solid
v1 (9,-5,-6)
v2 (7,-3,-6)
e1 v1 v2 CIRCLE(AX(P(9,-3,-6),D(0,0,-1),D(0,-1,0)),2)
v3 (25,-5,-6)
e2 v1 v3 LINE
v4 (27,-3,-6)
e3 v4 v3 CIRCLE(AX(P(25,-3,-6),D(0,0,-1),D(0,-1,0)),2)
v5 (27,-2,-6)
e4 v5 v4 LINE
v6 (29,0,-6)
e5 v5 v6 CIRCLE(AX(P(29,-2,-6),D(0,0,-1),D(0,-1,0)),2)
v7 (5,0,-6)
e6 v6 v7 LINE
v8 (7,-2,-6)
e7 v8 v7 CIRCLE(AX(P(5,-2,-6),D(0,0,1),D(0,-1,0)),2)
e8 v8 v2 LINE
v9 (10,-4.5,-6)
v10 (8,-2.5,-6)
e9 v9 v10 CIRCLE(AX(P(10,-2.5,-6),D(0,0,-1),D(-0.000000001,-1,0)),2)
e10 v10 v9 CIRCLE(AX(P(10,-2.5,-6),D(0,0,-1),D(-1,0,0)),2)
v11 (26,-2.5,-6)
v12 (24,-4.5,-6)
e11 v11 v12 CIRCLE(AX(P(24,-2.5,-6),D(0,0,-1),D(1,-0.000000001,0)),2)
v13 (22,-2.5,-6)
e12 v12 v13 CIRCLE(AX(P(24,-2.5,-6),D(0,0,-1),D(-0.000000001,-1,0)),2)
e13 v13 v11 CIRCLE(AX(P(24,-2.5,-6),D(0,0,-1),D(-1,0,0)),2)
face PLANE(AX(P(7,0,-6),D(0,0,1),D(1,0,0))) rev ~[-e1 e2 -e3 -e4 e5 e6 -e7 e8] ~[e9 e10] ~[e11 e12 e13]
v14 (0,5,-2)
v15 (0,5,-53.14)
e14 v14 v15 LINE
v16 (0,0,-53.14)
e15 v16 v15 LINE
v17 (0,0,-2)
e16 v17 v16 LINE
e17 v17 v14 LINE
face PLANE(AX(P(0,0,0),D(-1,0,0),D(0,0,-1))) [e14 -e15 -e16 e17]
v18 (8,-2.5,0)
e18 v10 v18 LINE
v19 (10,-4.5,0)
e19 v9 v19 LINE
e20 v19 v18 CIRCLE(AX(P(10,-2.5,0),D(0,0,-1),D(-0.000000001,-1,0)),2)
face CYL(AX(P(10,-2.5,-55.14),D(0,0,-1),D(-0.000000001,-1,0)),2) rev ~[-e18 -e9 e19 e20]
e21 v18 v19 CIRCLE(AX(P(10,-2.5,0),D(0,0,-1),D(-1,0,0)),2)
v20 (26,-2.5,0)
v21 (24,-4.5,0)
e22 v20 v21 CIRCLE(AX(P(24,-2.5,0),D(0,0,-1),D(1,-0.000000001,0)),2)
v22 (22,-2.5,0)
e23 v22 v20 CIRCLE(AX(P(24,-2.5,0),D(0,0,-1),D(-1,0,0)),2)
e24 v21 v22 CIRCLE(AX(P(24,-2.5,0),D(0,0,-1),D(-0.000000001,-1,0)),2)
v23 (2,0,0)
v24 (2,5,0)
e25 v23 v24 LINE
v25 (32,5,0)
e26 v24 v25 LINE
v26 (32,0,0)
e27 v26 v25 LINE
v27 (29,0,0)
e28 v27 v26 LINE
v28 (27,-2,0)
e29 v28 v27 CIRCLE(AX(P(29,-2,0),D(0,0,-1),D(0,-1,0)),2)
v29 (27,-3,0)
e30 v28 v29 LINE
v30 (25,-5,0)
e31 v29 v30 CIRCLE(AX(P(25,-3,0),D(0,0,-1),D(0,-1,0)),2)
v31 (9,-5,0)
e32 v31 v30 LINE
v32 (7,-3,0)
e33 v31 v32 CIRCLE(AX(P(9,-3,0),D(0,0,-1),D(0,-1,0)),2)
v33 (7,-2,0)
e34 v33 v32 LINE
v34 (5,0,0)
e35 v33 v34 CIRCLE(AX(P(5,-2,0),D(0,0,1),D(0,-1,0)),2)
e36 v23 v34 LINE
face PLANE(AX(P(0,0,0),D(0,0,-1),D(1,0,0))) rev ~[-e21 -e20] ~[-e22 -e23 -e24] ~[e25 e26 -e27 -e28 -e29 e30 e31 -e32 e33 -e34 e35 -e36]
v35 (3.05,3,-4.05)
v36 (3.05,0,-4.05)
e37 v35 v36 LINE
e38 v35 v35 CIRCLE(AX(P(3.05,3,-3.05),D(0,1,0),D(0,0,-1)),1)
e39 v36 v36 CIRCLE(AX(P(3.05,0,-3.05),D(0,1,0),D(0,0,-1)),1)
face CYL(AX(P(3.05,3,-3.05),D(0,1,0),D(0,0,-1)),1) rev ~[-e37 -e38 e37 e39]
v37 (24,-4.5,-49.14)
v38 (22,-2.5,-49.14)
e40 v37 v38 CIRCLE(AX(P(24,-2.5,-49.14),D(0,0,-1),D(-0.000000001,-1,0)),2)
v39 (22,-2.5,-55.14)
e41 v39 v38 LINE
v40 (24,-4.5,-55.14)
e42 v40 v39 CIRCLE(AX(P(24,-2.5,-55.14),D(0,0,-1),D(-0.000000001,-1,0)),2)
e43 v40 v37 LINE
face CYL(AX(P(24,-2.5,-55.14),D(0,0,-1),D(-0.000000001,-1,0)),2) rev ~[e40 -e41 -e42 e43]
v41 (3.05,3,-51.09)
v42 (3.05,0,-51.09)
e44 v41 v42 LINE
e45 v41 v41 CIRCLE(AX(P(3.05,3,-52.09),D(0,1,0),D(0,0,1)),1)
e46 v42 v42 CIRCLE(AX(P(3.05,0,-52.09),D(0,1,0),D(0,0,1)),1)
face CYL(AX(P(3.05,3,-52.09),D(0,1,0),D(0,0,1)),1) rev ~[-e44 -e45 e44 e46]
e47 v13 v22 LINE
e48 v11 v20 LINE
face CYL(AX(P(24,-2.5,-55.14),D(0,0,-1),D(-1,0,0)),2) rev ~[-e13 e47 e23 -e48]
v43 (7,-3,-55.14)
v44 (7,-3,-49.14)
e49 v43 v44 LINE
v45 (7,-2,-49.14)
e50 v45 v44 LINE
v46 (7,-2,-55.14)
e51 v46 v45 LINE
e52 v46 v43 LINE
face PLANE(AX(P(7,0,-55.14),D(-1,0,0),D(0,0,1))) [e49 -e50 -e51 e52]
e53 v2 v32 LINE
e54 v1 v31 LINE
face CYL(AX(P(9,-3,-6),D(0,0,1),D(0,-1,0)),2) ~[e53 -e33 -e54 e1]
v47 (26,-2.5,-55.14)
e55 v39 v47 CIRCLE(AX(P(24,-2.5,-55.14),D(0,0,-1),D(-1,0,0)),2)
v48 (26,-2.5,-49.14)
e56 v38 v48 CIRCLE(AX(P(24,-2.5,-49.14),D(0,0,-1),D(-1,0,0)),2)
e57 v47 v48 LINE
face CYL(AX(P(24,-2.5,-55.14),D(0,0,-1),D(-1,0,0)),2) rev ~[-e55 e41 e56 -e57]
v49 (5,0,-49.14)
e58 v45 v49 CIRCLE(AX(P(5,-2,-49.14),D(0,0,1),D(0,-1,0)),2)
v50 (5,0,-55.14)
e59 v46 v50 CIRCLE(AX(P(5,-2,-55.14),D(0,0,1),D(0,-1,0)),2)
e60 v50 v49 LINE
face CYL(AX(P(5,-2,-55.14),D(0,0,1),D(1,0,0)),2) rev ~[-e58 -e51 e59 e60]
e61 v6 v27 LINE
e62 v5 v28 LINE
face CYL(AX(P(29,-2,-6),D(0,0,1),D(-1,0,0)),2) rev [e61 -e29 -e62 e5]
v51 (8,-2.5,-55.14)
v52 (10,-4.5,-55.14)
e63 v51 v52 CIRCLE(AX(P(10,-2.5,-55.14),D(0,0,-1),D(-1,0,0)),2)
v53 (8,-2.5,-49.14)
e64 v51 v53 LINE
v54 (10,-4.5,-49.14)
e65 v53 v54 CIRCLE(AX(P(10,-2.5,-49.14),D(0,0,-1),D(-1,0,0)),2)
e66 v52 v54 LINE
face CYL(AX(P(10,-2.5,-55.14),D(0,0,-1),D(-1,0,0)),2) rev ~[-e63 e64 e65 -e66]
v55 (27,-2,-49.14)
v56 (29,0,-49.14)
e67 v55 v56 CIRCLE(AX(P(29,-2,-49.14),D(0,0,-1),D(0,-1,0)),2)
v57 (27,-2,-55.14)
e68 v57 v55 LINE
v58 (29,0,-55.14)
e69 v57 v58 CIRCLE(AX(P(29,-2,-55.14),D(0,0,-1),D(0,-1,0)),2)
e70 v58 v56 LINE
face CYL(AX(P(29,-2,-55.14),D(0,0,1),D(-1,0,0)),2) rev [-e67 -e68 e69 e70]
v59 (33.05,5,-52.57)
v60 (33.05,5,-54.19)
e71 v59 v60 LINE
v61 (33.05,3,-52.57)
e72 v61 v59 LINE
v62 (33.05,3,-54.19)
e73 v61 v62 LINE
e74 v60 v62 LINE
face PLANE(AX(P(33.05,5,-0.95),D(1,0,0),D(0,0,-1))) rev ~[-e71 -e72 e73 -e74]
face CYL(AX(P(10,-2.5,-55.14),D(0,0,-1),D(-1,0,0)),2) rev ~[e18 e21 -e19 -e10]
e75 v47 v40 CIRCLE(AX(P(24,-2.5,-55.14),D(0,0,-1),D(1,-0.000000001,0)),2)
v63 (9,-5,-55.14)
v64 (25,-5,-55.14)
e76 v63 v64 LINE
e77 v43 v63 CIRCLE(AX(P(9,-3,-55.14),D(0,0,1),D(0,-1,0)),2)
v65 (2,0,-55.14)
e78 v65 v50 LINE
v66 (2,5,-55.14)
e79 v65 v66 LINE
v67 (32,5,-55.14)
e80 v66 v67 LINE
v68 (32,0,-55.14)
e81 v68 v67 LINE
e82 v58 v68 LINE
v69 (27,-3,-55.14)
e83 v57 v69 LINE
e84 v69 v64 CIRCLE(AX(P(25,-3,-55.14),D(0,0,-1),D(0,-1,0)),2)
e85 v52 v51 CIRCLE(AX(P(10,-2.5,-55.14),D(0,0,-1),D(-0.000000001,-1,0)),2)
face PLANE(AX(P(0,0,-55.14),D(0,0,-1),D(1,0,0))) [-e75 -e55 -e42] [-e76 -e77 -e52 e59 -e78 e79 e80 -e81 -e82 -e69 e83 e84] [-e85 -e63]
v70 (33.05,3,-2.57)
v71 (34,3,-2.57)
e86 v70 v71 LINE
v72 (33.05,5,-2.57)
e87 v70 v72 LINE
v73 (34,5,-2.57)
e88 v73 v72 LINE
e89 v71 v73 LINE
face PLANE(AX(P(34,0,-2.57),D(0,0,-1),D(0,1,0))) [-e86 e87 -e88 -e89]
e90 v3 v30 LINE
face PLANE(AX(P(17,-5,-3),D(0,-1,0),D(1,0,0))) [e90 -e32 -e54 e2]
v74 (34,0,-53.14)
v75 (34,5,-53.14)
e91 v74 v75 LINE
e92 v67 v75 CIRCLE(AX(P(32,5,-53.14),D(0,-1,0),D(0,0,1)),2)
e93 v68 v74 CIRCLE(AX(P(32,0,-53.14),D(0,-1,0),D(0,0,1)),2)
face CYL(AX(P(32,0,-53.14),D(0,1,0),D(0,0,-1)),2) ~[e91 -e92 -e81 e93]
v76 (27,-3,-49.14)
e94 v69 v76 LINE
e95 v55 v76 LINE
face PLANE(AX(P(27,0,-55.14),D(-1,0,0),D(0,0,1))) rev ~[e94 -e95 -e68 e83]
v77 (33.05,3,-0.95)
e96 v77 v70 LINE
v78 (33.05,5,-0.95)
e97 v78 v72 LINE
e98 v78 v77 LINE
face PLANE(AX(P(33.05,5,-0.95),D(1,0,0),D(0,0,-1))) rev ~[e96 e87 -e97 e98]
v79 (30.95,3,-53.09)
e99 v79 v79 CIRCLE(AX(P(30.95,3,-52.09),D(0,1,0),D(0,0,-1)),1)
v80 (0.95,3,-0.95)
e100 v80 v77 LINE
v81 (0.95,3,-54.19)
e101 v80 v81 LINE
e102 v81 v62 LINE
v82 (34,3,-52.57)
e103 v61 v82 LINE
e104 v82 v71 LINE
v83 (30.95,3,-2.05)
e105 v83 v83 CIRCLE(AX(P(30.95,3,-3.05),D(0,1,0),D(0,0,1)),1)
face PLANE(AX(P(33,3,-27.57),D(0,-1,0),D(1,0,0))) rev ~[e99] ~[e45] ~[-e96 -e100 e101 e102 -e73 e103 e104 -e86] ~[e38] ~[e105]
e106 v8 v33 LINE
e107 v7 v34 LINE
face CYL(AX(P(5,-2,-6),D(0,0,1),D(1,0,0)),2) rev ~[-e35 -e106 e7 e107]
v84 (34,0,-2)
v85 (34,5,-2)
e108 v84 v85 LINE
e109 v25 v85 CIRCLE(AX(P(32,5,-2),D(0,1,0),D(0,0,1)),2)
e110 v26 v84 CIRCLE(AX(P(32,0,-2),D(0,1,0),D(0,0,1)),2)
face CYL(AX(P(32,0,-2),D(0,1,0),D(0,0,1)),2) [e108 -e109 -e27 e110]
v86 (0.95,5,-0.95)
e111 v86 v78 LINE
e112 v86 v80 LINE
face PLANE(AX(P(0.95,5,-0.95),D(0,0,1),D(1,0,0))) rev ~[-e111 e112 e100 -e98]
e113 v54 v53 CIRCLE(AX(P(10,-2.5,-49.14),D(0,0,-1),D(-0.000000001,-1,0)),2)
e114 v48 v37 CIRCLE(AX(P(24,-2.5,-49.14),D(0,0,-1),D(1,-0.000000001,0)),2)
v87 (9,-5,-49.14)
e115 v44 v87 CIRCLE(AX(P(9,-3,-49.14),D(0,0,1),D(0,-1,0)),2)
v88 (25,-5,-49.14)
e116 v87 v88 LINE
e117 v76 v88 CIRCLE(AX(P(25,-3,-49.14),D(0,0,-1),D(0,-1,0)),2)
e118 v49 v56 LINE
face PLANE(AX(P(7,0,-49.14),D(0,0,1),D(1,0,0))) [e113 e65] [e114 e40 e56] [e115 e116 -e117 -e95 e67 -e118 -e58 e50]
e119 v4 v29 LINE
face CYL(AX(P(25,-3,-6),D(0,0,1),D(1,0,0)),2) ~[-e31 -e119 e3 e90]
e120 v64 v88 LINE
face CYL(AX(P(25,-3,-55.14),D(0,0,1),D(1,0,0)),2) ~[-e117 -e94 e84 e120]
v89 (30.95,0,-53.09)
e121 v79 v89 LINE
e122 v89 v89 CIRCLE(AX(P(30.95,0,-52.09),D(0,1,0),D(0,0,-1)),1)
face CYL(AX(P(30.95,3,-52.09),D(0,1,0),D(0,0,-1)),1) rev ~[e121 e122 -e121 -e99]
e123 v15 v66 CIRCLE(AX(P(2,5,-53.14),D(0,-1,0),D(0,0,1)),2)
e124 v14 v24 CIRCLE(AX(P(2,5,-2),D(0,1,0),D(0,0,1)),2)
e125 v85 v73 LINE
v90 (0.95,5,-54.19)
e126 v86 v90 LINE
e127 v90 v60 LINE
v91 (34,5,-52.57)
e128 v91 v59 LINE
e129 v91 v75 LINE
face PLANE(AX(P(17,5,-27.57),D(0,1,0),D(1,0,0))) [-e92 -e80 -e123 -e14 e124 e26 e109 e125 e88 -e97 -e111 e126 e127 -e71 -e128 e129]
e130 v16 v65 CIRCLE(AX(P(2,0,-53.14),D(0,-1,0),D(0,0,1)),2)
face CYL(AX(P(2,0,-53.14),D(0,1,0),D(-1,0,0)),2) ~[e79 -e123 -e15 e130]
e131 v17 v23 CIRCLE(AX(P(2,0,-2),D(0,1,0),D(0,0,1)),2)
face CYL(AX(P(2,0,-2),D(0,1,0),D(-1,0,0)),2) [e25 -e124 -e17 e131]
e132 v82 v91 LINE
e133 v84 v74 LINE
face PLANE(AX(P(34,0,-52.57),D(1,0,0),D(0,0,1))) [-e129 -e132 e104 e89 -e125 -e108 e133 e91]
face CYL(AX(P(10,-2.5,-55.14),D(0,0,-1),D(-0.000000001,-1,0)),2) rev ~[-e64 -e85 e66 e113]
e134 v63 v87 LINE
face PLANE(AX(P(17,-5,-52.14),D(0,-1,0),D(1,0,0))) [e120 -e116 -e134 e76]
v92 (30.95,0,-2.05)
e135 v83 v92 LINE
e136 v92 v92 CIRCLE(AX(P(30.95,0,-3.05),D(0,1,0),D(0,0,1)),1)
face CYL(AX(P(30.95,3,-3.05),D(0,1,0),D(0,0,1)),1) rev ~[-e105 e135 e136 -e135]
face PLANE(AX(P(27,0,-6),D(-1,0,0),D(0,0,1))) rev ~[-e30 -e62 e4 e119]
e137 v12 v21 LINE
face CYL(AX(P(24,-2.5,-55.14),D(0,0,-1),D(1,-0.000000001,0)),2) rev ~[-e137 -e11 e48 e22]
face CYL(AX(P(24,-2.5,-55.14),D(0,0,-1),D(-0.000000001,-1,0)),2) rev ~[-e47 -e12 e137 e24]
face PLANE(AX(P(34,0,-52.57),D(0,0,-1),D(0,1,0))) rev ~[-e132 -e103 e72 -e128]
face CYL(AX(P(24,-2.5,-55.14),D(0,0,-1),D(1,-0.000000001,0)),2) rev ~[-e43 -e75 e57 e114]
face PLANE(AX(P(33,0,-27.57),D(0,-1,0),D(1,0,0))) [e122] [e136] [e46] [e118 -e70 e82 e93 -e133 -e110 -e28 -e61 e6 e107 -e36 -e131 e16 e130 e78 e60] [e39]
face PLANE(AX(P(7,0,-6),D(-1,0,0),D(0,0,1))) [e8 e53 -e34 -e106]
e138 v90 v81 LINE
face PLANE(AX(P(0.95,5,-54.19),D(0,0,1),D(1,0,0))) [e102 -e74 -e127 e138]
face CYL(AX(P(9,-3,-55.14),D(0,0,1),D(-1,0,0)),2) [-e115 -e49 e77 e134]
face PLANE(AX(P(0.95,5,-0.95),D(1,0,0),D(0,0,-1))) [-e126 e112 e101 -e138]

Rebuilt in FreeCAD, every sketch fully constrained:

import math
import FreeCAD as App
import Part
import Sketcher

V = App.Vector


def edges_at(feature, points):
    """Names of the edges that pass closest to the given points."""
    edges = feature.Shape.Edges
    near = lambda p: min(range(len(edges)), key=lambda i: edges[i].distToShape(Part.Vertex(*p))[0])
    return sorted({f"Edge{near(p) + 1}" for p in points})


def add_polygon(sketch, points):
    """Adds a closed chain of lines whose ends are joined by coincident constraints."""
    first, n = sketch.GeometryCount, len(points)
    for a, b in zip(points, points[1:] + points[:1]):
        sketch.addGeometry(Part.LineSegment(App.Vector(*a, 0), App.Vector(*b, 0)), False)
    for i in range(n):
        sketch.addConstraint(Sketcher.Constraint("Coincident", first + i, 2, first + (i + 1) % n, 1))

doc = App.newDocument("Part")
params = doc.addObject("Spreadsheet::Sheet", "Params")
for row, (alias, value) in enumerate([
    ("sketch1_width", "34 mm"),
    ("sketch1_height", "55.14 mm"),
    ("pad1_length", "5 mm"),
    ("sketch2_width", "32.1 mm"),
    ("sketch2_height", "53.24 mm"),
    ("pocket1_length", "2 mm"),
    ("sketch3_width", "10 mm"),
    ("sketch3_height", "50 mm"),
    ("pocket2_length", "2 mm"),
    ("fillet_radius", "2 mm"),
    ("fillet2_radius", "2 mm"),
    ("fillet3_radius", "2 mm"),
    ("fillet4_radius", "2 mm"),
    ("sketch4_diameter", "2 mm"),
    ("pocket3_length", "5 mm"),
    ("sketch5_radius", "1 mm"),
    ("sketch5_height", "43.04 mm"),
    ("pocket4_length", "5 mm"),
    ("pad2_length", "3 mm"),
    ("sketch7_width", "20 mm"),
    ("sketch7_height", "6 mm"),
    ("pad3_length", "5 mm"),
    ("sketch8_width", "20 mm"),
    ("sketch8_height", "6 mm"),
    ("pad4_length", "5 mm"),
    ("sketch9_radius", "2 mm"),
    ("fillet5_radius", "2 mm"),
    ("fillet6_radius", "2 mm"),
    ("fillet7_radius", "2 mm"),
    ("fillet8_radius", "2 mm"),
    ("fillet9_radius", "2 mm"),
    ("fillet10_radius", "2 mm"),
    ("fillet11_radius", "2 mm"),
    ("fillet12_radius", "2 mm"),
    ("sketch10_width", "2 mm"),
    ("sketch10_height", "50 mm"),
    ("pad5_length", "3 mm"),
], start=1):
    params.set(f"A{row}", alias)
    params.set(f"B{row}", "=" + value)
    params.setAlias(f"B{row}", alias)

body = doc.addObject("PartDesign::Body", "Body")

sketch1 = body.newObject("Sketcher::SketchObject", "Sketch")
sketch1.AttachmentSupport = (doc.getObject("XZ_Plane"), [""])
sketch1.MapMode = "FlatFace"
add_polygon(sketch1, [(0, -55), (0, 0), (34, 0), (34, -55)])
sketch1.addConstraint([
    Sketcher.Constraint("Vertical", 0),
    Sketcher.Constraint("Horizontal", 1),
    Sketcher.Constraint("Vertical", 2),
    Sketcher.Constraint("Horizontal", 3),
    Sketcher.Constraint("Coincident", 0, 2, -1, 1),
    Sketcher.Constraint("DistanceX", 1, 1, 1, 2, 34.0),
    Sketcher.Constraint("DistanceY", 0, 1, 0, 2, 55.14),
])
sketch1.setExpression("Constraints[9]", "Params.sketch1_width")
sketch1.setExpression("Constraints[10]", "Params.sketch1_height")
pad1 = body.newObject("PartDesign::Pad", "Pad")
pad1.Profile = sketch1
pad1.setExpression("Length", "Params.pad1_length")
pad1.Reversed = True

sketch2 = body.newObject("Sketcher::SketchObject", "Sketch001")
sketch2.AttachmentSupport = (doc.getObject("XZ_Plane"), [""])
sketch2.MapMode = "FlatFace"
sketch2.AttachmentOffset = App.Placement(V(0, 0, -5), App.Rotation())
add_polygon(sketch2, [(1, -54), (1, -1), (33, -1), (33, -54)])
sketch2.addConstraint([
    Sketcher.Constraint("Vertical", 0),
    Sketcher.Constraint("Horizontal", 1),
    Sketcher.Constraint("Vertical", 2),
    Sketcher.Constraint("Horizontal", 3),
    Sketcher.Constraint("DistanceX", 1, 1, 1, 2, 32.1),
    Sketcher.Constraint("DistanceY", 0, 1, 0, 2, 53.24),
    Sketcher.Constraint("DistanceX", -1, 1, 0, 2, 0.95),
    Sketcher.Constraint("DistanceY", 0, 2, -1, 1, 0.95),
])
sketch2.setExpression("Constraints[8]", "Params.sketch2_width")
sketch2.setExpression("Constraints[9]", "Params.sketch2_height")
pocket1 = body.newObject("PartDesign::Pocket", "Pocket")
pocket1.Profile = sketch2
pocket1.setExpression("Length", "Params.pocket1_length")
pocket1.Reversed = True

sketch3 = body.newObject("Sketcher::SketchObject", "Sketch002")
sketch3.AttachmentSupport = (doc.getObject("YZ_Plane"), [""])
sketch3.MapMode = "FlatFace"
sketch3.AttachmentOffset = App.Placement(V(0, 0, 34), App.Rotation())
add_polygon(sketch3, [(10, -3), (0, -3), (0, -53), (10, -53)])
sketch3.addConstraint([
    Sketcher.Constraint("Horizontal", 0),
    Sketcher.Constraint("Vertical", 1),
    Sketcher.Constraint("Horizontal", 2),
    Sketcher.Constraint("Vertical", 3),
    Sketcher.Constraint("PointOnObject", 0, 2, -2),
    Sketcher.Constraint("DistanceX", 0, 2, 0, 1, 10.0),
    Sketcher.Constraint("DistanceY", 1, 2, 1, 1, 50.0),
    Sketcher.Constraint("DistanceY", 0, 2, -1, 1, 2.57),
])
sketch3.setExpression("Constraints[9]", "Params.sketch3_width")
sketch3.setExpression("Constraints[10]", "Params.sketch3_height")
pocket2 = body.newObject("PartDesign::Pocket", "Pocket001")
pocket2.Profile = sketch3
pocket2.setExpression("Length", "Params.pocket2_length")
doc.recompute()

fillet = body.newObject("PartDesign::Fillet", "Fillet")
fillet.Base = (pocket2, edges_at(pocket2, [(0, 2.5, 0)]))
fillet.setExpression("Radius", "Params.fillet_radius")
doc.recompute()

fillet2 = body.newObject("PartDesign::Fillet", "Fillet001")
fillet2.Base = (fillet, edges_at(fillet, [(0, 2.5, -55.14)]))
fillet2.setExpression("Radius", "Params.fillet2_radius")
doc.recompute()

fillet3 = body.newObject("PartDesign::Fillet", "Fillet002")
fillet3.Base = (fillet2, edges_at(fillet2, [(34, 2.5, -55.14)]))
fillet3.setExpression("Radius", "Params.fillet3_radius")
doc.recompute()

fillet4 = body.newObject("PartDesign::Fillet", "Fillet003")
fillet4.Base = (fillet3, edges_at(fillet3, [(34, 2.5, 0)]))
fillet4.setExpression("Radius", "Params.fillet4_radius")

sketch4 = body.newObject("Sketcher::SketchObject", "Sketch003")
sketch4.AttachmentSupport = (doc.getObject("XZ_Plane"), [""])
sketch4.MapMode = "FlatFace"
sketch4.AttachmentOffset = App.Placement(V(0, 0, -3), App.Rotation())
sketch4.addGeometry([
    Part.Circle(V(3, -52.1, 0), V(0, 0, 1), 1),
    Part.Circle(V(3, -3, 0), V(0, 0, 1), 1),
    Part.Circle(V(30.9, -3, 0), V(0, 0, 1), 1),
    Part.Circle(V(30.9, -52.1, 0), V(0, 0, 1), 1),
], False)
sketch4.addConstraint([
    Sketcher.Constraint("Equal", 0, 1),
    Sketcher.Constraint("Equal", 1, 2),
    Sketcher.Constraint("Equal", 2, 3),
    Sketcher.Constraint("Horizontal", 1, 3, 2, 3),
    Sketcher.Constraint("Horizontal", 0, 3, 3, 3),
    Sketcher.Constraint("Vertical", 0, 3, 1, 3),
    Sketcher.Constraint("Vertical", 2, 3, 3, 3),
    Sketcher.Constraint("Diameter", 0, 2.0),
    Sketcher.Constraint("DistanceX", 1, 3, 2, 3, 27.9),
    Sketcher.Constraint("DistanceX", -1, 1, 0, 3, 3.05),
    Sketcher.Constraint("DistanceY", 0, 3, -1, 1, 52.09),
    Sketcher.Constraint("DistanceY", 1, 3, -1, 1, 3.05),
])
sketch4.setExpression("Constraints[7]", "Params.sketch4_diameter")
pocket3 = body.newObject("PartDesign::Pocket", "Pocket002")
pocket3.Profile = sketch4
pocket3.setExpression("Length", "Params.pocket3_length")
pocket3.Reversed = True

sketch5 = body.newObject("Sketcher::SketchObject", "Sketch004")
sketch5.AttachmentSupport = (doc.getObject("XZ_Plane"), [""])
sketch5.MapMode = "FlatFace"
sketch5.AttachmentOffset = App.Placement(V(0, 0, -3), App.Rotation())
sketch5.addGeometry([
    Part.ArcOfCircle(Part.Circle(V(6.05, -49.09, 0), V(0, 0, 1), 1), math.radians(-180), math.radians(-90)),
    Part.LineSegment(V(5.05, -49.09, 0), V(5.05, -6.05, 0)),
    Part.ArcOfCircle(Part.Circle(V(6.05, -6.05, 0), V(0, 0, 1), 1), math.radians(90), math.radians(180)),
    Part.LineSegment(V(6.05, -5.05, 0), V(6.25, -5.05, 0)),
    Part.ArcOfCircle(Part.Circle(V(6.25, -6.05, 0), V(0, 0, 1), 1), math.radians(0), math.radians(90)),
    Part.LineSegment(V(7.25, -6.05, 0), V(7.25, -49.09, 0)),
    Part.ArcOfCircle(Part.Circle(V(6.25, -49.09, 0), V(0, 0, 1), 1), math.radians(-90), math.radians(0)),
    Part.LineSegment(V(6.25, -50.09, 0), V(6.05, -50.09, 0)),
    Part.ArcOfCircle(Part.Circle(V(11.05, -49.09, 0), V(0, 0, 1), 1), math.radians(-180), math.radians(-90)),
    Part.LineSegment(V(10.05, -49.09, 0), V(10.05, -6.05, 0)),
    Part.ArcOfCircle(Part.Circle(V(11.05, -6.05, 0), V(0, 0, 1), 1), math.radians(90), math.radians(180)),
    Part.LineSegment(V(11.05, -5.05, 0), V(11.25, -5.05, 0)),
    Part.ArcOfCircle(Part.Circle(V(11.25, -6.05, 0), V(0, 0, 1), 1), math.radians(0), math.radians(90)),
    Part.LineSegment(V(12.25, -6.05, 0), V(12.25, -49.09, 0)),
    Part.ArcOfCircle(Part.Circle(V(11.25, -49.09, 0), V(0, 0, 1), 1), math.radians(-90), math.radians(0)),
    Part.LineSegment(V(11.25, -50.09, 0), V(11.05, -50.09, 0)),
    Part.ArcOfCircle(Part.Circle(V(21.05, -49.09, 0), V(0, 0, 1), 1), math.radians(-180), math.radians(-90)),
    Part.LineSegment(V(20.05, -49.09, 0), V(20.05, -6.05, 0)),
    Part.ArcOfCircle(Part.Circle(V(21.05, -6.05, 0), V(0, 0, 1), 1), math.radians(90), math.radians(180)),
    Part.LineSegment(V(21.05, -5.05, 0), V(21.25, -5.05, 0)),
    Part.ArcOfCircle(Part.Circle(V(21.25, -6.05, 0), V(0, 0, 1), 1), math.radians(0), math.radians(90)),
    Part.LineSegment(V(22.25, -6.05, 0), V(22.25, -49.09, 0)),
    Part.ArcOfCircle(Part.Circle(V(21.25, -49.09, 0), V(0, 0, 1), 1), math.radians(-90), math.radians(0)),
    Part.LineSegment(V(21.25, -50.09, 0), V(21.05, -50.09, 0)),
    Part.ArcOfCircle(Part.Circle(V(26.05, -6.05, 0), V(0, 0, 1), 1), math.radians(90), math.radians(180)),
    Part.LineSegment(V(26.05, -5.05, 0), V(26.25, -5.05, 0)),
    Part.ArcOfCircle(Part.Circle(V(26.25, -6.05, 0), V(0, 0, 1), 1), math.radians(0), math.radians(90)),
    Part.LineSegment(V(27.25, -6.05, 0), V(27.25, -49.09, 0)),
    Part.ArcOfCircle(Part.Circle(V(26.25, -49.09, 0), V(0, 0, 1), 1), math.radians(-90), math.radians(0)),
    Part.LineSegment(V(26.25, -50.09, 0), V(26.05, -50.09, 0)),
    Part.ArcOfCircle(Part.Circle(V(26.05, -49.09, 0), V(0, 0, 1), 1), math.radians(-180), math.radians(-90)),
    Part.LineSegment(V(25.05, -49.09, 0), V(25.05, -6.05, 0)),
    Part.LineSegment(V(15.05, -49.09, 0), V(15.05, -6.05, 0)),
    Part.ArcOfCircle(Part.Circle(V(16.05, -6.05, 0), V(0, 0, 1), 1), math.radians(90), math.radians(180)),
    Part.LineSegment(V(16.05, -5.05, 0), V(16.25, -5.05, 0)),
    Part.ArcOfCircle(Part.Circle(V(16.25, -6.05, 0), V(0, 0, 1), 1), math.radians(0), math.radians(90)),
    Part.LineSegment(V(17.25, -6.05, 0), V(17.25, -49.09, 0)),
    Part.ArcOfCircle(Part.Circle(V(16.25, -49.09, 0), V(0, 0, 1), 1), math.radians(-90), math.radians(0)),
    Part.LineSegment(V(16.25, -50.09, 0), V(16.05, -50.09, 0)),
    Part.ArcOfCircle(Part.Circle(V(16.05, -49.09, 0), V(0, 0, 1), 1), math.radians(-180), math.radians(-90)),
], False)
sketch5.addConstraint([
    Sketcher.Constraint("Tangent", 0, 1, 1, 1),
    Sketcher.Constraint("Tangent", 1, 2, 2, 2),
    Sketcher.Constraint("Tangent", 2, 1, 3, 1),
    Sketcher.Constraint("Tangent", 3, 2, 4, 2),
    Sketcher.Constraint("Tangent", 4, 1, 5, 1),
    Sketcher.Constraint("Tangent", 5, 2, 6, 2),
    Sketcher.Constraint("Tangent", 6, 1, 7, 1),
    Sketcher.Constraint("Tangent", 7, 2, 0, 2),
    Sketcher.Constraint("Tangent", 8, 1, 9, 1),
    Sketcher.Constraint("Tangent", 9, 2, 10, 2),
    Sketcher.Constraint("Tangent", 10, 1, 11, 1),
    Sketcher.Constraint("Tangent", 11, 2, 12, 2),
    Sketcher.Constraint("Tangent", 12, 1, 13, 1),
    Sketcher.Constraint("Tangent", 13, 2, 14, 2),
    Sketcher.Constraint("Tangent", 14, 1, 15, 1),
    Sketcher.Constraint("Tangent", 15, 2, 8, 2),
    Sketcher.Constraint("Tangent", 16, 1, 17, 1),
    Sketcher.Constraint("Tangent", 17, 2, 18, 2),
    Sketcher.Constraint("Tangent", 18, 1, 19, 1),
    Sketcher.Constraint("Tangent", 19, 2, 20, 2),
    Sketcher.Constraint("Tangent", 20, 1, 21, 1),
    Sketcher.Constraint("Tangent", 21, 2, 22, 2),
    Sketcher.Constraint("Tangent", 22, 1, 23, 1),
    Sketcher.Constraint("Tangent", 23, 2, 16, 2),
    Sketcher.Constraint("Tangent", 24, 1, 25, 1),
    Sketcher.Constraint("Tangent", 25, 2, 26, 2),
    Sketcher.Constraint("Tangent", 26, 1, 27, 1),
    Sketcher.Constraint("Tangent", 27, 2, 28, 2),
    Sketcher.Constraint("Tangent", 28, 1, 29, 1),
    Sketcher.Constraint("Tangent", 29, 2, 30, 2),
    Sketcher.Constraint("Tangent", 30, 1, 31, 1),
    Sketcher.Constraint("Tangent", 31, 2, 24, 2),
    Sketcher.Constraint("Tangent", 32, 2, 33, 2),
    Sketcher.Constraint("Tangent", 33, 1, 34, 1),
    Sketcher.Constraint("Tangent", 34, 2, 35, 2),
    Sketcher.Constraint("Tangent", 35, 1, 36, 1),
    Sketcher.Constraint("Tangent", 36, 2, 37, 2),
    Sketcher.Constraint("Tangent", 37, 1, 38, 1),
    Sketcher.Constraint("Tangent", 38, 2, 39, 2),
    Sketcher.Constraint("Tangent", 39, 1, 32, 1),
    Sketcher.Constraint("Vertical", 1),
    Sketcher.Constraint("Horizontal", 3),
    Sketcher.Constraint("Vertical", 5),
    Sketcher.Constraint("Horizontal", 7),
    Sketcher.Constraint("Vertical", 9),
    Sketcher.Constraint("Horizontal", 11),
    Sketcher.Constraint("Vertical", 13),
    Sketcher.Constraint("Horizontal", 15),
    Sketcher.Constraint("Vertical", 17),
    Sketcher.Constraint("Horizontal", 19),
    Sketcher.Constraint("Vertical", 21),
    Sketcher.Constraint("Horizontal", 23),
    Sketcher.Constraint("Horizontal", 25),
    Sketcher.Constraint("Vertical", 27),
    Sketcher.Constraint("Horizontal", 29),
    Sketcher.Constraint("Vertical", 31),
    Sketcher.Constraint("Vertical", 32),
    Sketcher.Constraint("Horizontal", 34),
    Sketcher.Constraint("Vertical", 36),
    Sketcher.Constraint("Horizontal", 38),
    Sketcher.Constraint("Equal", 0, 2),
    Sketcher.Constraint("Equal", 2, 4),
    Sketcher.Constraint("Equal", 4, 6),
    Sketcher.Constraint("Equal", 6, 8),
    Sketcher.Constraint("Equal", 8, 10),
    Sketcher.Constraint("Equal", 10, 12),
    Sketcher.Constraint("Equal", 12, 14),
    Sketcher.Constraint("Equal", 14, 16),
    Sketcher.Constraint("Equal", 16, 18),
    Sketcher.Constraint("Equal", 18, 20),
    Sketcher.Constraint("Equal", 20, 22),
    Sketcher.Constraint("Equal", 22, 24),
    Sketcher.Constraint("Equal", 24, 26),
    Sketcher.Constraint("Equal", 26, 28),
    Sketcher.Constraint("Equal", 28, 30),
    Sketcher.Constraint("Equal", 30, 33),
    Sketcher.Constraint("Equal", 33, 35),
    Sketcher.Constraint("Equal", 35, 37),
    Sketcher.Constraint("Equal", 37, 39),
    Sketcher.Constraint("Horizontal", 6, 3, 8, 3),
    Sketcher.Constraint("Horizontal", 4, 3, 10, 3),
    Sketcher.Constraint("Horizontal", 14, 3, 16, 3),
    Sketcher.Constraint("Horizontal", 12, 3, 18, 3),
    Sketcher.Constraint("Horizontal", 20, 3, 24, 3),
    Sketcher.Constraint("Horizontal", 22, 3, 28, 3),
    Sketcher.Constraint("Horizontal", 26, 3, 33, 3),
    Sketcher.Constraint("Horizontal", 30, 3, 37, 3),
    Sketcher.Constraint("Equal", 7, 11),
    Sketcher.Constraint("Equal", 15, 19),
    Sketcher.Constraint("Equal", 23, 25),
    Sketcher.Constraint("Equal", 29, 34),
    Sketcher.Constraint("Radius", 0, 1.0),
    Sketcher.Constraint("DistanceX", 0, 3, 8, 3, 5.0),
    Sketcher.Constraint("DistanceX", 8, 3, 16, 3, 10.0),
    Sketcher.Constraint("DistanceX", 18, 3, 24, 3, 5.0),
    Sketcher.Constraint("DistanceX", 10, 3, 33, 3, 5.0),
    Sketcher.Constraint("DistanceY", 1, 1, 1, 2, 43.04),
    Sketcher.Constraint("DistanceX", -1, 1, 0, 3, 6.05),
    Sketcher.Constraint("DistanceY", 0, 3, -1, 1, 49.09),
    Sketcher.Constraint("DistanceX", 3, 1, 3, 2, 0.204717),
])
sketch5.setExpression("Constraints[91]", "Params.sketch5_radius")
sketch5.setExpression("Constraints[96]", "Params.sketch5_height")
pocket4 = body.newObject("PartDesign::Pocket", "Pocket003")
pocket4.Profile = sketch5
pocket4.setExpression("Length", "Params.pocket4_length")
pocket4.Reversed = True

sketch6 = body.newObject("Sketcher::SketchObject", "Sketch005")
sketch6.AttachmentSupport = (doc.getObject("XZ_Plane"), [""])
sketch6.MapMode = "FlatFace"
add_polygon(sketch6, [(3, -5), (3, -51), (28, -51), (28, -5)])
sketch6.addConstraint([
    Sketcher.Constraint("Vertical", 0),
    Sketcher.Constraint("Horizontal", 1),
    Sketcher.Constraint("Vertical", 2),
    Sketcher.Constraint("Horizontal", 3),
    Sketcher.Constraint("DistanceX", 1, 1, 1, 2, 24.577641),
    Sketcher.Constraint("DistanceY", 0, 2, 0, 1, 46.089684),
    Sketcher.Constraint("DistanceY", 0, 2, -1, 1, 50.614842),
    Sketcher.Constraint("DistanceX", -1, 1, 0, 2, 3.336946),
])
pad2 = body.newObject("PartDesign::Pad", "Pad001")
pad2.Profile = sketch6
pad2.setExpression("Length", "Params.pad2_length")
pad2.Reversed = True

sketch7 = body.newObject("Sketcher::SketchObject", "Sketch006")
sketch7.AttachmentSupport = (doc.getObject("XZ_Plane"), [""])
sketch7.MapMode = "FlatFace"
add_polygon(sketch7, [(7, 0), (7, -6), (27, -6), (27, 0)])
sketch7.addConstraint([
    Sketcher.Constraint("Vertical", 0),
    Sketcher.Constraint("Horizontal", 1),
    Sketcher.Constraint("Vertical", 2),
    Sketcher.Constraint("Horizontal", 3),
    Sketcher.Constraint("PointOnObject", 2, 2, -1),
    Sketcher.Constraint("DistanceX", 1, 1, 1, 2, 20.0),
    Sketcher.Constraint("DistanceY", 0, 2, 0, 1, 6.0),
    Sketcher.Constraint("DistanceX", -1, 1, 0, 2, 7.0),
])
sketch7.setExpression("Constraints[9]", "Params.sketch7_width")
sketch7.setExpression("Constraints[10]", "Params.sketch7_height")
pad3 = body.newObject("PartDesign::Pad", "Pad002")
pad3.Profile = sketch7
pad3.setExpression("Length", "Params.pad3_length")

sketch8 = body.newObject("Sketcher::SketchObject", "Sketch007")
sketch8.AttachmentSupport = (doc.getObject("XZ_Plane"), [""])
sketch8.MapMode = "FlatFace"
add_polygon(sketch8, [(7, -49), (7, -55), (27, -55), (27, -49)])
sketch8.addConstraint([
    Sketcher.Constraint("Vertical", 0),
    Sketcher.Constraint("Horizontal", 1),
    Sketcher.Constraint("Vertical", 2),
    Sketcher.Constraint("Horizontal", 3),
    Sketcher.Constraint("DistanceX", 1, 1, 1, 2, 20.0),
    Sketcher.Constraint("DistanceY", 0, 2, 0, 1, 6.0),
    Sketcher.Constraint("DistanceX", -1, 1, 0, 2, 7.0),
    Sketcher.Constraint("DistanceY", 0, 2, -1, 1, 55.14),
])
sketch8.setExpression("Constraints[8]", "Params.sketch8_width")
sketch8.setExpression("Constraints[9]", "Params.sketch8_height")
pad4 = body.newObject("PartDesign::Pad", "Pad003")
pad4.Profile = sketch8
pad4.setExpression("Length", "Params.pad4_length")

sketch9 = body.newObject("Sketcher::SketchObject", "Sketch008")
sketch9.AttachmentSupport = (doc.getObject("XY_Plane"), [""])
sketch9.MapMode = "FlatFace"
sketch9.AttachmentOffset = App.Placement(V(0, 0, -55.14), App.Rotation())
sketch9.addGeometry([
    Part.ArcOfCircle(Part.Circle(V(10, -2.5, 0), V(0, 0, 1), 2), math.radians(-90), math.radians(180)),
    Part.ArcOfCircle(Part.Circle(V(10, -2.5, 0), V(0, 0, 1), 2), math.radians(-180), math.radians(-90)),
    Part.ArcOfCircle(Part.Circle(V(24, -2.5, 0), V(0, 0, 1), 2), math.radians(-90), math.radians(0)),
    Part.ArcOfCircle(Part.Circle(V(24, -2.5, 0), V(0, 0, 1), 2), math.radians(-180), math.radians(-90)),
    Part.ArcOfCircle(Part.Circle(V(24, -2.5, 0), V(0, 0, 1), 2), math.radians(0), math.radians(180)),
], False)
sketch9.addConstraint([
    Sketcher.Constraint("Tangent", 0, 1, 1, 2),
    Sketcher.Constraint("Coincident", 1, 1, 0, 2),
    Sketcher.Constraint("Tangent", 2, 1, 3, 2),
    Sketcher.Constraint("Tangent", 3, 1, 4, 2),
    Sketcher.Constraint("Tangent", 4, 1, 2, 2),
    Sketcher.Constraint("Equal", 1, 2),
    Sketcher.Constraint("Horizontal", 1, 3, 2, 3),
    Sketcher.Constraint("Horizontal", 4, 3, 1, 1),
    Sketcher.Constraint("Horizontal", 1, 1, 3, 1),
    Sketcher.Constraint("Horizontal", 3, 1, 4, 1),
    Sketcher.Constraint("Vertical", 1, 3, 0, 1),
    Sketcher.Constraint("Vertical", 4, 3, 2, 1),
    Sketcher.Constraint("Radius", 0, 2.0),
    Sketcher.Constraint("DistanceX", -1, 1, 0, 3, 10.0),
    Sketcher.Constraint("DistanceX", -1, 1, 2, 3, 24.0),
    Sketcher.Constraint("DistanceY", 0, 3, -1, 1, 2.5),
])
sketch9.setExpression("Constraints[12]", "Params.sketch9_radius")
pocket5 = body.newObject("PartDesign::Pocket", "Pocket004")
pocket5.Profile = sketch9
pocket5.Type = "ThroughAll"
pocket5.Reversed = True
doc.recompute()

fillet5 = body.newObject("PartDesign::Fillet", "Fillet004")
fillet5.Base = (pocket5, edges_at(pocket5, [(7, -5, -52.14)]))
fillet5.setExpression("Radius", "Params.fillet5_radius")
doc.recompute()

fillet6 = body.newObject("PartDesign::Fillet", "Fillet005")
fillet6.Base = (fillet5, edges_at(fillet5, [(7, 0, -52.14)]))
fillet6.setExpression("Radius", "Params.fillet6_radius")
doc.recompute()

fillet7 = body.newObject("PartDesign::Fillet", "Fillet006")
fillet7.Base = (fillet6, edges_at(fillet6, [(27, -5, -52.14)]))
fillet7.setExpression("Radius", "Params.fillet7_radius")
doc.recompute()

fillet8 = body.newObject("PartDesign::Fillet", "Fillet007")
fillet8.Base = (fillet7, edges_at(fillet7, [(27, 0, -52.14)]))
fillet8.setExpression("Radius", "Params.fillet8_radius")
doc.recompute()

fillet9 = body.newObject("PartDesign::Fillet", "Fillet008")
fillet9.Base = (fillet8, edges_at(fillet8, [(7, -5, -3)]))
fillet9.setExpression("Radius", "Params.fillet9_radius")
doc.recompute()

fillet10 = body.newObject("PartDesign::Fillet", "Fillet009")
fillet10.Base = (fillet9, edges_at(fillet9, [(7, 0, -3)]))
fillet10.setExpression("Radius", "Params.fillet10_radius")
doc.recompute()

fillet11 = body.newObject("PartDesign::Fillet", "Fillet010")
fillet11.Base = (fillet10, edges_at(fillet10, [(27, -5, -3)]))
fillet11.setExpression("Radius", "Params.fillet11_radius")
doc.recompute()

fillet12 = body.newObject("PartDesign::Fillet", "Fillet011")
fillet12.Base = (fillet11, edges_at(fillet11, [(27, 0, -3)]))
fillet12.setExpression("Radius", "Params.fillet12_radius")

sketch10 = body.newObject("Sketcher::SketchObject", "Sketch009")
sketch10.AttachmentSupport = (doc.getObject("XZ_Plane"), [""])
sketch10.MapMode = "FlatFace"
add_polygon(sketch10, [(32, -2.6), (32, -52.6), (34, -52.6), (34, -2.6)])
sketch10.addConstraint([
    Sketcher.Constraint("Vertical", 0),
    Sketcher.Constraint("Horizontal", 1),
    Sketcher.Constraint("Vertical", 2),
    Sketcher.Constraint("Horizontal", 3),
    Sketcher.Constraint("DistanceX", 1, 1, 1, 2, 2.0),
    Sketcher.Constraint("DistanceY", 0, 2, 0, 1, 50.0),
    Sketcher.Constraint("DistanceX", -1, 1, 0, 2, 32.0),
    Sketcher.Constraint("DistanceY", 0, 2, -1, 1, 52.57),
])
sketch10.setExpression("Constraints[8]", "Params.sketch10_width")
sketch10.setExpression("Constraints[9]", "Params.sketch10_height")
pad5 = body.newObject("PartDesign::Pad", "Pad004")
pad5.Profile = sketch10
pad5.setExpression("Length", "Params.pad5_length")
pad5.Reversed = True

doc.recompute()
